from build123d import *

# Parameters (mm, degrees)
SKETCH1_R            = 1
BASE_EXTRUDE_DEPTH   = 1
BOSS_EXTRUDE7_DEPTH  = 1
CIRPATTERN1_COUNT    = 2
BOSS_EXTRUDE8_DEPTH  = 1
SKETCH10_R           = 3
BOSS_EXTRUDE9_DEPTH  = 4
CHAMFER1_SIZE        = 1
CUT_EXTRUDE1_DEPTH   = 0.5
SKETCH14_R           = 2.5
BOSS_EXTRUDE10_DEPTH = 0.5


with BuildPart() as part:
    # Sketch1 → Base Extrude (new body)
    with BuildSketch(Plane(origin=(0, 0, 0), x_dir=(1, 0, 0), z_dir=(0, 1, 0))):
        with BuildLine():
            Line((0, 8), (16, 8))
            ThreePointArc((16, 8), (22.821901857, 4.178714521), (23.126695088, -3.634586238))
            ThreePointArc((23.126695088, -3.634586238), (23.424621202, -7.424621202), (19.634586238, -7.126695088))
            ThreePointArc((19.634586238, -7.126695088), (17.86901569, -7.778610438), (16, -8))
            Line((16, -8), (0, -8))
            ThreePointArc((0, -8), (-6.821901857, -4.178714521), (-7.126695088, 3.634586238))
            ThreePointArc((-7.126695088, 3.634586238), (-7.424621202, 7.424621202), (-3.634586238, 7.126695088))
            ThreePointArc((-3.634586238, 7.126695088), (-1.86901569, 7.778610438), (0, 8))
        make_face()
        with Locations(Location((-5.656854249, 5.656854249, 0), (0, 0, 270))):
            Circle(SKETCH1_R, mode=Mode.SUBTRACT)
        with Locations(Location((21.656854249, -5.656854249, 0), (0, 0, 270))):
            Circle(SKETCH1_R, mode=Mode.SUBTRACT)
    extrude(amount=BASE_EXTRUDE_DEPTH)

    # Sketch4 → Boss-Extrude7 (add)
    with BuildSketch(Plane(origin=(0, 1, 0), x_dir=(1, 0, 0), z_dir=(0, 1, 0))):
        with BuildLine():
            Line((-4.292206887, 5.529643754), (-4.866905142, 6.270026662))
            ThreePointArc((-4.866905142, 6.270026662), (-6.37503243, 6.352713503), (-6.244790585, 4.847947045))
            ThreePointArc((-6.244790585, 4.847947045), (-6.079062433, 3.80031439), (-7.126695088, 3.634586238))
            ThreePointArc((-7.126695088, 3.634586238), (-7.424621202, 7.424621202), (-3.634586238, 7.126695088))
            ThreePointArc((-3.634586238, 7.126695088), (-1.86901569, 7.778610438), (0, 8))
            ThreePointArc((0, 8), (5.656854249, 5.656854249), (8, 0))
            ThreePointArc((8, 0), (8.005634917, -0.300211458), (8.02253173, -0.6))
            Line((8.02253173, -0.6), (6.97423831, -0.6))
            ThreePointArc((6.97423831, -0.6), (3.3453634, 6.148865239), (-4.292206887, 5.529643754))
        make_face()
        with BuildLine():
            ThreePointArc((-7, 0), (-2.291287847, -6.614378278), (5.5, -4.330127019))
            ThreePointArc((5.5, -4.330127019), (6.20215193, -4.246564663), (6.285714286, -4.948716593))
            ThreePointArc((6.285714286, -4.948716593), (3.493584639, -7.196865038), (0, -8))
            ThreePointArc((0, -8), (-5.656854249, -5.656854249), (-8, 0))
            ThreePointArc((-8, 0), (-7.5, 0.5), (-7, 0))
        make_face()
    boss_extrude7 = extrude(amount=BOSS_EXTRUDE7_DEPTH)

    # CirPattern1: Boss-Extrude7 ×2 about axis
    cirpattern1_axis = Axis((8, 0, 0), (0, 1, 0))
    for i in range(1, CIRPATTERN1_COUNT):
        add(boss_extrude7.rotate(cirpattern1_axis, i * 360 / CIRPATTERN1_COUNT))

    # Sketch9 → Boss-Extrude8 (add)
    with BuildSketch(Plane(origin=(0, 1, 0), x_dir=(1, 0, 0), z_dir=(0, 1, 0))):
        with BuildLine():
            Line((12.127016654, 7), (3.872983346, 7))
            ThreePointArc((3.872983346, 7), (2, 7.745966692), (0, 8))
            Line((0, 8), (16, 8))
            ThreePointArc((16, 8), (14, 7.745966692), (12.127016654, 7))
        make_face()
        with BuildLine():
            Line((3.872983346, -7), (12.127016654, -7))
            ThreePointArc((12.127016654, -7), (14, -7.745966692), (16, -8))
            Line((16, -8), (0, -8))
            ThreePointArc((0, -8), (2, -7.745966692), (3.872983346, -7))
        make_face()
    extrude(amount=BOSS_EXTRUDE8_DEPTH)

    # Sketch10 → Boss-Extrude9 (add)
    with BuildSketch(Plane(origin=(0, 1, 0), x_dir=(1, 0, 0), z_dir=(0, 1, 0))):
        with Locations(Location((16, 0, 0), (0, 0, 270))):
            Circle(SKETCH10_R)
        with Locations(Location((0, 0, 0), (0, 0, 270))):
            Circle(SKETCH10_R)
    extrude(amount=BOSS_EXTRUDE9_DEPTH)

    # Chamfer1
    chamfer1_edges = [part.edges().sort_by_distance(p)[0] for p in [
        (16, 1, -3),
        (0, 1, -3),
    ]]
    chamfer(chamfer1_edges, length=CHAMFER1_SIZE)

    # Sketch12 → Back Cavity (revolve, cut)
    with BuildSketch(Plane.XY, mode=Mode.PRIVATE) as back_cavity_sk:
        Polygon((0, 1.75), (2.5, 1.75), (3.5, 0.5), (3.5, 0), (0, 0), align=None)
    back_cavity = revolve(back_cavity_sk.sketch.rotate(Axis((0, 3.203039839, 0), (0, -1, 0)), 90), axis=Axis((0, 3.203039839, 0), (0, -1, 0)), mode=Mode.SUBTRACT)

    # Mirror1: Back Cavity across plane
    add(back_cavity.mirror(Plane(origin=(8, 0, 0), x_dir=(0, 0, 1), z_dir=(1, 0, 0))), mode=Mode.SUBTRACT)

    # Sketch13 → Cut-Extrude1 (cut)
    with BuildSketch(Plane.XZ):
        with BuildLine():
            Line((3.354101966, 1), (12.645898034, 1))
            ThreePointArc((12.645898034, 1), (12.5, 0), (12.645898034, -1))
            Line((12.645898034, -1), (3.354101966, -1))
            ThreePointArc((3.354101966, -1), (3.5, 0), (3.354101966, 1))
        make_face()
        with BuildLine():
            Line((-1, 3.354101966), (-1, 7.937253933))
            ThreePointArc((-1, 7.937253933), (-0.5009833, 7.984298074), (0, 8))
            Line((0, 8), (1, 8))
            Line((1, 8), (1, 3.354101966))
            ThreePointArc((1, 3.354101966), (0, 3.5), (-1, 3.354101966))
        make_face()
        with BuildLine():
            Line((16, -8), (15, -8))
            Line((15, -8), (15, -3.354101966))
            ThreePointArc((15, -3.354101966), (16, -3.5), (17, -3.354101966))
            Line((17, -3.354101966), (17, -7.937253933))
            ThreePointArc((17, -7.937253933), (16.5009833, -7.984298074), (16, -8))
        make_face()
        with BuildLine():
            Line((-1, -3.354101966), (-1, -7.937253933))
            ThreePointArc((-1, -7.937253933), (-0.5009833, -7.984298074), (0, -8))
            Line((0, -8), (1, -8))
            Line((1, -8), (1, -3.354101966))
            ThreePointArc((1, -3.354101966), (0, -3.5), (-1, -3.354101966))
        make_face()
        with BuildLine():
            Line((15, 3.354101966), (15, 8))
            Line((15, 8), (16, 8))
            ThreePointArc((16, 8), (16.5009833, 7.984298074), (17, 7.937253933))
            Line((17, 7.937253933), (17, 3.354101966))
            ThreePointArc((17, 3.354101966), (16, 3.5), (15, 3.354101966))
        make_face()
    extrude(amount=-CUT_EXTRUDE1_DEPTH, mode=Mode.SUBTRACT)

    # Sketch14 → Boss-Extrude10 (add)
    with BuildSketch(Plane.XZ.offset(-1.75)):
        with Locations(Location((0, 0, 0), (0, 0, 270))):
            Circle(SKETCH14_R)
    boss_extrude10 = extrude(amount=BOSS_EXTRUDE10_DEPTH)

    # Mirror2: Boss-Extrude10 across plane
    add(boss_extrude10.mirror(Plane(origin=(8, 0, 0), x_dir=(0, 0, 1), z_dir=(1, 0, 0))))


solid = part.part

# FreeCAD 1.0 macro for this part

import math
import FreeCAD as App
import Part
import Sketcher


def edges_at(feature, points):
    """Names of the edges that pass closest to the given points."""
    edges = feature.Shape.Edges
    near = lambda p: min(range(len(edges)), key=lambda i: edges[i].distToShape(Part.Vertex(*p))[0])
    return sorted({f"Edge{near(p) + 1}" for p in points})

doc = App.newDocument("Part")
body = doc.addObject("PartDesign::Body", "Body")

sketch1 = doc.addObject("Sketcher::SketchObject", "Sketch")
body.addObject(sketch1)
sketch1.AttachmentSupport = (doc.XZ_Plane, [""])
sketch1.MapMode = "FlatFace"
sketch1.addGeometry(Part.LineSegment(App.Vector(16, -8, 0), App.Vector(0, -8, 0)), False)
sketch1.addGeometry(Part.ArcOfCircle(Part.Circle(App.Vector(0, 0, 0), App.Vector(0, 0, 1), 8), math.radians(-117.021401), math.radians(-90)), False)
sketch1.addGeometry(Part.ArcOfCircle(Part.Circle(App.Vector(-5.656854, -5.656854, 0), App.Vector(0, 0, 1), 2.5), math.radians(126.010701), math.radians(323.989299)), False)
sketch1.addGeometry(Part.ArcOfCircle(Part.Circle(App.Vector(0, 0, 0), App.Vector(0, 0, 1), 8), math.radians(90), math.radians(207.021401)), False)
sketch1.addGeometry(Part.LineSegment(App.Vector(0, 8, 0), App.Vector(16, 8, 0)), False)
sketch1.addGeometry(Part.ArcOfCircle(Part.Circle(App.Vector(16, 0, 0), App.Vector(0, 0, 1), 8), math.radians(62.978599), math.radians(90)), False)
sketch1.addGeometry(Part.ArcOfCircle(Part.Circle(App.Vector(21.656854, 5.656854, 0), App.Vector(0, 0, 1), 2.5), math.radians(-53.989299), math.radians(143.989299)), False)
sketch1.addGeometry(Part.ArcOfCircle(Part.Circle(App.Vector(16, 0, 0), App.Vector(0, 0, 1), 8), math.radians(-90), math.radians(27.021401)), False)
sketch1.addGeometry(Part.Circle(App.Vector(21.656854, 5.656854, 0), App.Vector(0, 0, 1), 1), False)
sketch1.addGeometry(Part.Circle(App.Vector(-5.656854, -5.656854, 0), App.Vector(0, 0, 1), 1), False)
sketch1.addConstraint(Sketcher.Constraint("Tangent", 0, 2, 1, 2))
sketch1.addConstraint(Sketcher.Constraint("Coincident", 1, 1, 2, 2))
sketch1.addConstraint(Sketcher.Constraint("Coincident", 2, 1, 3, 2))
sketch1.addConstraint(Sketcher.Constraint("Tangent", 3, 1, 4, 1))
sketch1.addConstraint(Sketcher.Constraint("Tangent", 4, 2, 5, 2))
sketch1.addConstraint(Sketcher.Constraint("Coincident", 5, 1, 6, 2))
sketch1.addConstraint(Sketcher.Constraint("Coincident", 6, 1, 7, 2))
sketch1.addConstraint(Sketcher.Constraint("Tangent", 7, 1, 0, 1))
sketch1.addConstraint(Sketcher.Constraint("Horizontal", 0))
sketch1.addConstraint(Sketcher.Constraint("Horizontal", 4))
sketch1.addConstraint(Sketcher.Constraint("Coincident", 1, 3, -1, 1))
sketch1.addConstraint(Sketcher.Constraint("Coincident", 3, 3, -1, 1))
sketch1.addConstraint(Sketcher.Constraint("Coincident", 7, 3, 5, 3))
sketch1.addConstraint(Sketcher.Constraint("Coincident", 8, 3, 6, 3))
sketch1.addConstraint(Sketcher.Constraint("Coincident", 9, 3, 2, 3))
sketch1.addConstraint(Sketcher.Constraint("Equal", 1, 3))
sketch1.addConstraint(Sketcher.Constraint("Equal", 3, 5))
sketch1.addConstraint(Sketcher.Constraint("Equal", 2, 6))
sketch1.addConstraint(Sketcher.Constraint("Equal", 8, 9))
sketch1.addConstraint(Sketcher.Constraint("Diameter", 8, 2.0))
sketch1.addConstraint(Sketcher.Constraint("Radius", 1, 8.0))
sketch1.addConstraint(Sketcher.Constraint("Radius", 2, 2.5))
sketch1.addConstraint(Sketcher.Constraint("DistanceX", 0, 2, 0, 1, 16.0))
sketch1.addConstraint(Sketcher.Constraint("DistanceX", 2, 3, 6, 3, 27.313708))
sketch1.addConstraint(Sketcher.Constraint("DistanceY", 2, 3, 6, 3, 11.313708))
sketch1.addConstraint(Sketcher.Constraint("DistanceX", 2, 3, 1, 1, 2.022268))
sketch1.addConstraint(Sketcher.Constraint("DistanceX", 2, 1, 2, 3, 1.469841))
pad1 = doc.addObject("PartDesign::Pad", "Pad")
body.addObject(pad1)
pad1.Profile = sketch1
pad1.Length = 1
pad1.Reversed = True

sketch2 = doc.addObject("Sketcher::SketchObject", "Sketch001")
body.addObject(sketch2)
sketch2.AttachmentSupport = (doc.XZ_Plane, [""])
sketch2.MapMode = "FlatFace"
sketch2.AttachmentOffset = App.Placement(App.Vector(0, 0, -1), App.Rotation())
sketch2.addGeometry(Part.LineSegment(App.Vector(-4.866905, -6.270027, 0), App.Vector(-4.292207, -5.529644, 0)), False)
sketch2.addGeometry(Part.ArcOfCircle(Part.Circle(App.Vector(0, 0, 0), App.Vector(0, 0, 1), 7), math.radians(-127.819244), math.radians(4.9171)), False)
sketch2.addGeometry(Part.LineSegment(App.Vector(6.974238, 0.6, 0), App.Vector(8.022532, 0.6, 0)), False)
sketch2.addGeometry(Part.ArcOfCircle(Part.Circle(App.Vector(16, 0, 0), App.Vector(0, 0, 1), 8), math.radians(175.698778), math.radians(180)), False)
sketch2.addGeometry(Part.ArcOfCircle(Part.Circle(App.Vector(0, 0, 0), App.Vector(0, 0, 1), 8), math.radians(-90), math.radians(0)), False)
sketch2.addGeometry(Part.ArcOfCircle(Part.Circle(App.Vector(0, 0, 0), App.Vector(0, 0, 1), 8), math.radians(-117.021401), math.radians(-90)), False)
sketch2.addGeometry(Part.ArcOfCircle(Part.Circle(App.Vector(-5.656854, -5.656854, 0), App.Vector(0, 0, 1), 2.5), math.radians(126.010701), math.radians(323.989299)), False)
sketch2.addGeometry(Part.ArcOfCircle(Part.Circle(App.Vector(-6.685743, -4.241267, 0), App.Vector(0, 0, 1), 0.75), math.radians(-53.989299), math.radians(126.010701)), False)
sketch2.addGeometry(Part.ArcOfCircle(Part.Circle(App.Vector(-5.656854, -5.656854, 0), App.Vector(0, 0, 1), 1), math.radians(126.010701), math.radians(322.180756)), False)
sketch2.addGeometry(Part.ArcOfCircle(Part.Circle(App.Vector(0, 0, 0), App.Vector(0, 0, 1), 7), math.radians(38.213211), math.radians(180)), False)
sketch2.addGeometry(Part.ArcOfCircle(Part.Circle(App.Vector(-7.5, 0, 0), App.Vector(0, 0, 1), 0.5), math.radians(180), math.radians(360)), False)
sketch2.addGeometry(Part.ArcOfCircle(Part.Circle(App.Vector(0, 0, 0), App.Vector(0, 0, 1), 8), math.radians(90), math.radians(180)), False)
sketch2.addGeometry(Part.ArcOfCircle(Part.Circle(App.Vector(0, 0, 0), App.Vector(0, 0, 1), 8), math.radians(38.213211), math.radians(90)), False)
sketch2.addGeometry(Part.ArcOfCircle(Part.Circle(App.Vector(5.892857, 4.639422, 0), App.Vector(0, 0, 1), 0.5), math.radians(-141.786789), math.radians(38.213211)), False)
sketch2.addConstraint(Sketcher.Constraint("Coincident", 0, 2, 1, 1))
sketch2.addConstraint(Sketcher.Constraint("Coincident", 1, 2, 2, 1))
sketch2.addConstraint(Sketcher.Constraint("Coincident", 2, 2, 3, 1))
sketch2.addConstraint(Sketcher.Constraint("Tangent", 3, 2, 4, 2))
sketch2.addConstraint(Sketcher.Constraint("Tangent", 4, 1, 5, 2))
sketch2.addConstraint(Sketcher.Constraint("Coincident", 5, 1, 6, 2))
sketch2.addConstraint(Sketcher.Constraint("Tangent", 6, 1, 7, 2))
sketch2.addConstraint(Sketcher.Constraint("Tangent", 7, 1, 8, 1))
sketch2.addConstraint(Sketcher.Constraint("Tangent", 8, 2, 0, 1))
sketch2.addConstraint(Sketcher.Constraint("Tangent", 9, 2, 10, 2))
sketch2.addConstraint(Sketcher.Constraint("Tangent", 10, 1, 11, 2))
sketch2.addConstraint(Sketcher.Constraint("Tangent", 11, 1, 12, 2))
sketch2.addConstraint(Sketcher.Constraint("Tangent", 12, 1, 13, 2))
sketch2.addConstraint(Sketcher.Constraint("Tangent", 13, 1, 9, 1))
sketch2.addConstraint(Sketcher.Constraint("Horizontal", 2))
sketch2.addConstraint(Sketcher.Constraint("Coincident", 1, 3, -1, 1))
sketch2.addConstraint(Sketcher.Constraint("Coincident", 4, 3, -1, 1))
sketch2.addConstraint(Sketcher.Constraint("Coincident", 9, 3, -1, 1))
sketch2.addConstraint(Sketcher.Constraint("Coincident", 11, 3, -1, 1))
sketch2.addConstraint(Sketcher.Constraint("Coincident", 8, 3, 6, 3))
sketch2.addConstraint(Sketcher.Constraint("Equal", 3, 4))
sketch2.addConstraint(Sketcher.Constraint("Equal", 4, 5))
sketch2.addConstraint(Sketcher.Constraint("Equal", 1, 9))
sketch2.addConstraint(Sketcher.Constraint("Equal", 5, 11))
sketch2.addConstraint(Sketcher.Constraint("Equal", 11, 12))
sketch2.addConstraint(Sketcher.Constraint("PointOnObject", 3, 3, -1))
sketch2.addConstraint(Sketcher.Constraint("PointOnObject", 10, 3, -1))
sketch2.addConstraint(Sketcher.Constraint("PointOnObject", 4, 1, -2))
sketch2.addConstraint(Sketcher.Constraint("PointOnObject", 11, 1, -2))
sketch2.addConstraint(Sketcher.Constraint("Radius", 1, 7.0))
sketch2.addConstraint(Sketcher.Constraint("Radius", 3, 8.0))
sketch2.addConstraint(Sketcher.Constraint("Radius", 8, 1.0))
sketch2.addConstraint(Sketcher.Constraint("Radius", 6, 2.5))
sketch2.addConstraint(Sketcher.Constraint("DistanceY", -1, 1, 1, 2, 0.6))
sketch2.addConstraint(Sketcher.Constraint("DistanceX", -1, 1, 13, 1, 5.5))
sketch2.addConstraint(Sketcher.Constraint("DistanceX", 8, 2, 0, 2, 0.574698))
sketch2.addConstraint(Sketcher.Constraint("DistanceX", 7, 1, -1, 1, 6.244791))
sketch2.addConstraint(Sketcher.Constraint("DistanceX", 7, 3, 6, 3, 1.028889))
sketch2.addConstraint(Sketcher.Constraint("DistanceY", 6, 3, 0, 2, 0.12721))
pad2 = doc.addObject("PartDesign::Pad", "Pad001")
body.addObject(pad2)
pad2.Profile = sketch2
pad2.Length = 1
pad2.Reversed = True
doc.recompute()

datumline = doc.addObject("PartDesign::Line", "DatumLine")
body.addObject(datumline)
datumline.Placement = App.Placement(App.Vector(8, 0, 0), App.Rotation(App.Vector(0, 0, 1), App.Vector(0, 1, 0)))
polarpattern = doc.addObject("PartDesign::PolarPattern", "PolarPattern")
body.addObject(polarpattern)
polarpattern.Originals = [pad2]
polarpattern.Axis = (datumline, [""])
polarpattern.Angle = 360
polarpattern.Occurrences = 2
body.Tip = polarpattern

sketch3 = doc.addObject("Sketcher::SketchObject", "Sketch002")
body.addObject(sketch3)
sketch3.AttachmentSupport = (doc.XZ_Plane, [""])
sketch3.MapMode = "FlatFace"
sketch3.AttachmentOffset = App.Placement(App.Vector(0, 0, -1), App.Rotation())
sketch3.addGeometry(Part.LineSegment(App.Vector(3.872983, -7, 0), App.Vector(12.127017, -7, 0)), False)
sketch3.addGeometry(Part.ArcOfCircle(Part.Circle(App.Vector(16, 0, 0), App.Vector(0, 0, 1), 8), math.radians(-118.955024), math.radians(-90)), False)
sketch3.addGeometry(Part.LineSegment(App.Vector(16, -8, 0), App.Vector(0, -8, 0)), False)
sketch3.addGeometry(Part.ArcOfCircle(Part.Circle(App.Vector(0, 0, 0), App.Vector(0, 0, 1), 8), math.radians(-90), math.radians(-61.044976)), False)
sketch3.addGeometry(Part.LineSegment(App.Vector(12.127017, 7, 0), App.Vector(3.872983, 7, 0)), False)
sketch3.addGeometry(Part.ArcOfCircle(Part.Circle(App.Vector(0, 0, 0), App.Vector(0, 0, 1), 8), math.radians(61.044976), math.radians(90)), False)
sketch3.addGeometry(Part.LineSegment(App.Vector(0, 8, 0), App.Vector(16, 8, 0)), False)
sketch3.addGeometry(Part.ArcOfCircle(Part.Circle(App.Vector(16, 0, 0), App.Vector(0, 0, 1), 8), math.radians(90), math.radians(118.955024)), False)
sketch3.addConstraint(Sketcher.Constraint("Coincident", 0, 2, 1, 1))
sketch3.addConstraint(Sketcher.Constraint("Tangent", 1, 2, 2, 1))
sketch3.addConstraint(Sketcher.Constraint("Tangent", 2, 2, 3, 1))
sketch3.addConstraint(Sketcher.Constraint("Coincident", 3, 2, 0, 1))
sketch3.addConstraint(Sketcher.Constraint("Coincident", 4, 2, 5, 1))
sketch3.addConstraint(Sketcher.Constraint("Tangent", 5, 2, 6, 1))
sketch3.addConstraint(Sketcher.Constraint("Tangent", 6, 2, 7, 1))
sketch3.addConstraint(Sketcher.Constraint("Coincident", 7, 2, 4, 1))
sketch3.addConstraint(Sketcher.Constraint("Horizontal", 0))
sketch3.addConstraint(Sketcher.Constraint("Horizontal", 2))
sketch3.addConstraint(Sketcher.Constraint("Horizontal", 4))
sketch3.addConstraint(Sketcher.Constraint("Horizontal", 6))
sketch3.addConstraint(Sketcher.Constraint("Coincident", 3, 3, -1, 1))
sketch3.addConstraint(Sketcher.Constraint("Coincident", 5, 3, -1, 1))
sketch3.addConstraint(Sketcher.Constraint("Coincident", 7, 3, 1, 3))
sketch3.addConstraint(Sketcher.Constraint("Equal", 1, 3))
sketch3.addConstraint(Sketcher.Constraint("Equal", 3, 5))
sketch3.addConstraint(Sketcher.Constraint("Vertical", 3, 2, 4, 2))
sketch3.addConstraint(Sketcher.Constraint("Radius", 1, 8.0))
sketch3.addConstraint(Sketcher.Constraint("DistanceX", 2, 2, 2, 1, 16.0))
sketch3.addConstraint(Sketcher.Constraint("DistanceY", 0, 2, -1, 1, 7.0))
pad3 = doc.addObject("PartDesign::Pad", "Pad002")
body.addObject(pad3)
pad3.Profile = sketch3
pad3.Length = 1
pad3.Reversed = True

sketch4 = doc.addObject("Sketcher::SketchObject", "Sketch003")
body.addObject(sketch4)
sketch4.AttachmentSupport = (doc.XZ_Plane, [""])
sketch4.MapMode = "FlatFace"
sketch4.AttachmentOffset = App.Placement(App.Vector(0, 0, -1), App.Rotation())
sketch4.addGeometry(Part.Circle(App.Vector(16, 0, 0), App.Vector(0, 0, 1), 3), False)
sketch4.addGeometry(Part.Circle(App.Vector(0, 0, 0), App.Vector(0, 0, 1), 3), False)
sketch4.addConstraint(Sketcher.Constraint("Coincident", 1, 3, -1, 1))
sketch4.addConstraint(Sketcher.Constraint("Equal", 0, 1))
sketch4.addConstraint(Sketcher.Constraint("PointOnObject", 0, 3, -1))
sketch4.addConstraint(Sketcher.Constraint("Diameter", 0, 6.0))
sketch4.addConstraint(Sketcher.Constraint("DistanceX", -1, 1, 0, 3, 16.0))
pad4 = doc.addObject("PartDesign::Pad", "Pad003")
body.addObject(pad4)
pad4.Profile = sketch4
pad4.Length = 4
pad4.Reversed = True
doc.recompute()

chamfer = doc.addObject("PartDesign::Chamfer", "Chamfer")
body.addObject(chamfer)
chamfer.Base = (pad4, edges_at(pad4, [(16, 1, -3), (0, 1, -3)]))
chamfer.Size = 1

sketch5 = doc.addObject("Sketcher::SketchObject", "Sketch004")
body.addObject(sketch5)
sketch5.AttachmentSupport = (doc.XY_Plane, [""])
sketch5.MapMode = "FlatFace"
sketch5.addGeometry(Part.LineSegment(App.Vector(2.5, 1.75, 0), App.Vector(0, 1.75, 0)), False)
sketch5.addGeometry(Part.LineSegment(App.Vector(0, 1.75, 0), App.Vector(0, 0, 0)), False)
sketch5.addGeometry(Part.LineSegment(App.Vector(0, 0, 0), App.Vector(3.5, 0, 0)), False)
sketch5.addGeometry(Part.LineSegment(App.Vector(3.5, 0, 0), App.Vector(3.5, 0.5, 0)), False)
sketch5.addGeometry(Part.LineSegment(App.Vector(3.5, 0.5, 0), App.Vector(2.5, 1.75, 0)), False)
sketch5.addConstraint(Sketcher.Constraint("Coincident", 0, 2, 1, 1))
sketch5.addConstraint(Sketcher.Constraint("Coincident", 1, 2, 2, 1))
sketch5.addConstraint(Sketcher.Constraint("Coincident", 2, 2, 3, 1))
sketch5.addConstraint(Sketcher.Constraint("Coincident", 3, 2, 4, 1))
sketch5.addConstraint(Sketcher.Constraint("Coincident", 4, 2, 0, 1))
sketch5.addConstraint(Sketcher.Constraint("Horizontal", 0))
sketch5.addConstraint(Sketcher.Constraint("Vertical", 1))
sketch5.addConstraint(Sketcher.Constraint("Horizontal", 2))
sketch5.addConstraint(Sketcher.Constraint("Vertical", 3))
sketch5.addConstraint(Sketcher.Constraint("Coincident", 1, 2, -1, 1))
sketch5.addConstraint(Sketcher.Constraint("DistanceX", 0, 2, 0, 1, 2.5))
sketch5.addConstraint(Sketcher.Constraint("DistanceX", 2, 1, 2, 2, 3.5))
sketch5.addConstraint(Sketcher.Constraint("DistanceY", 3, 1, 3, 2, 0.5))
sketch5.addConstraint(Sketcher.Constraint("DistanceY", 1, 2, 1, 1, 1.75))
groove = doc.addObject("PartDesign::Groove", "Groove")
body.addObject(groove)
groove.Profile = sketch5
groove.ReferenceAxis = (sketch5, ["V_Axis"])
groove.Angle = 360
doc.recompute()

datumplane = doc.addObject("PartDesign::Plane", "DatumPlane")
body.addObject(datumplane)
datumplane.AttachmentSupport = (doc.YZ_Plane, [""])
datumplane.MapMode = "FlatFace"
datumplane.AttachmentOffset = App.Placement(App.Vector(0, 0, 8), App.Rotation())
mirrored = doc.addObject("PartDesign::Mirrored", "Mirrored")
body.addObject(mirrored)
mirrored.Originals = [groove]
mirrored.MirrorPlane = (datumplane, [""])
body.Tip = mirrored

sketch6 = doc.addObject("Sketcher::SketchObject", "Sketch005")
body.addObject(sketch6)
sketch6.AttachmentSupport = (doc.XZ_Plane, [""])
sketch6.MapMode = "FlatFace"
sketch6.addGeometry(Part.LineSegment(App.Vector(12.645898, 1, 0), App.Vector(3.354102, 1, 0)), False)
sketch6.addGeometry(Part.ArcOfCircle(Part.Circle(App.Vector(0, 0, 0), App.Vector(0, 0, 1), 3.5), math.radians(-16.60155), math.radians(16.60155)), False)
sketch6.addGeometry(Part.LineSegment(App.Vector(3.354102, -1, 0), App.Vector(12.645898, -1, 0)), False)
sketch6.addGeometry(Part.ArcOfCircle(Part.Circle(App.Vector(16, 0, 0), App.Vector(0, 0, 1), 3.5), math.radians(163.39845), math.radians(196.60155)), False)
sketch6.addGeometry(Part.LineSegment(App.Vector(-1, 7.937254, 0), App.Vector(-1, 3.354102, 0)), False)
sketch6.addGeometry(Part.ArcOfCircle(Part.Circle(App.Vector(0, 0, 0), App.Vector(0, 0, 1), 3.5), math.radians(73.39845), math.radians(106.60155)), False)
sketch6.addGeometry(Part.LineSegment(App.Vector(1, 3.354102, 0), App.Vector(1, 8, 0)), False)
sketch6.addGeometry(Part.LineSegment(App.Vector(1, 8, 0), App.Vector(0, 8, 0)), False)
sketch6.addGeometry(Part.ArcOfCircle(Part.Circle(App.Vector(0, 0, 0), App.Vector(0, 0, 1), 8), math.radians(90), math.radians(97.180756)), False)
sketch6.addGeometry(Part.LineSegment(App.Vector(15, -8, 0), App.Vector(16, -8, 0)), False)
sketch6.addGeometry(Part.ArcOfCircle(Part.Circle(App.Vector(16, 0, 0), App.Vector(0, 0, 1), 8), math.radians(-90), math.radians(-82.819244)), False)
sketch6.addGeometry(Part.LineSegment(App.Vector(17, -7.937254, 0), App.Vector(17, -3.354102, 0)), False)
sketch6.addGeometry(Part.ArcOfCircle(Part.Circle(App.Vector(16, 0, 0), App.Vector(0, 0, 1), 3.5), math.radians(-106.60155), math.radians(-73.39845)), False)
sketch6.addGeometry(Part.LineSegment(App.Vector(15, -3.354102, 0), App.Vector(15, -8, 0)), False)
sketch6.addGeometry(Part.LineSegment(App.Vector(-1, -3.354102, 0), App.Vector(-1, -7.937254, 0)), False)
sketch6.addGeometry(Part.ArcOfCircle(Part.Circle(App.Vector(0, 0, 0), App.Vector(0, 0, 1), 8), math.radians(-97.180756), math.radians(-90)), False)
sketch6.addGeometry(Part.LineSegment(App.Vector(0, -8, 0), App.Vector(1, -8, 0)), False)
sketch6.addGeometry(Part.LineSegment(App.Vector(1, -8, 0), App.Vector(1, -3.354102, 0)), False)
sketch6.addGeometry(Part.ArcOfCircle(Part.Circle(App.Vector(0, 0, 0), App.Vector(0, 0, 1), 3.5), math.radians(-106.60155), math.radians(-73.39845)), False)
sketch6.addGeometry(Part.LineSegment(App.Vector(15, 8, 0), App.Vector(15, 3.354102, 0)), False)
sketch6.addGeometry(Part.ArcOfCircle(Part.Circle(App.Vector(16, 0, 0), App.Vector(0, 0, 1), 3.5), math.radians(73.39845), math.radians(106.60155)), False)
sketch6.addGeometry(Part.LineSegment(App.Vector(17, 3.354102, 0), App.Vector(17, 7.937254, 0)), False)
sketch6.addGeometry(Part.ArcOfCircle(Part.Circle(App.Vector(16, 0, 0), App.Vector(0, 0, 1), 8), math.radians(82.819244), math.radians(90)), False)
sketch6.addGeometry(Part.LineSegment(App.Vector(16, 8, 0), App.Vector(15, 8, 0)), False)
sketch6.addConstraint(Sketcher.Constraint("Coincident", 0, 2, 1, 2))
sketch6.addConstraint(Sketcher.Constraint("Coincident", 1, 1, 2, 1))
sketch6.addConstraint(Sketcher.Constraint("Coincident", 2, 2, 3, 2))
sketch6.addConstraint(Sketcher.Constraint("Coincident", 3, 1, 0, 1))
sketch6.addConstraint(Sketcher.Constraint("Coincident", 4, 2, 5, 2))
sketch6.addConstraint(Sketcher.Constraint("Coincident", 5, 1, 6, 1))
sketch6.addConstraint(Sketcher.Constraint("Coincident", 6, 2, 7, 1))
sketch6.addConstraint(Sketcher.Constraint("Tangent", 7, 2, 8, 1))
sketch6.addConstraint(Sketcher.Constraint("Coincident", 8, 2, 4, 1))
sketch6.addConstraint(Sketcher.Constraint("Tangent", 9, 2, 10, 1))
sketch6.addConstraint(Sketcher.Constraint("Coincident", 10, 2, 11, 1))
sketch6.addConstraint(Sketcher.Constraint("Coincident", 11, 2, 12, 2))
sketch6.addConstraint(Sketcher.Constraint("Coincident", 12, 1, 13, 1))
sketch6.addConstraint(Sketcher.Constraint("Coincident", 13, 2, 9, 1))
sketch6.addConstraint(Sketcher.Constraint("Coincident", 14, 2, 15, 1))
sketch6.addConstraint(Sketcher.Constraint("Tangent", 15, 2, 16, 1))
sketch6.addConstraint(Sketcher.Constraint("Coincident", 16, 2, 17, 1))
sketch6.addConstraint(Sketcher.Constraint("Coincident", 17, 2, 18, 2))
sketch6.addConstraint(Sketcher.Constraint("Coincident", 18, 1, 14, 1))
sketch6.addConstraint(Sketcher.Constraint("Coincident", 19, 2, 20, 2))
sketch6.addConstraint(Sketcher.Constraint("Coincident", 20, 1, 21, 1))
sketch6.addConstraint(Sketcher.Constraint("Coincident", 21, 2, 22, 1))
sketch6.addConstraint(Sketcher.Constraint("Tangent", 22, 2, 23, 1))
sketch6.addConstraint(Sketcher.Constraint("Coincident", 23, 2, 19, 1))
sketch6.addConstraint(Sketcher.Constraint("Horizontal", 0))
sketch6.addConstraint(Sketcher.Constraint("Horizontal", 2))
sketch6.addConstraint(Sketcher.Constraint("Vertical", 4))
sketch6.addConstraint(Sketcher.Constraint("Vertical", 6))
sketch6.addConstraint(Sketcher.Constraint("Horizontal", 7))
sketch6.addConstraint(Sketcher.Constraint("Horizontal", 9))
sketch6.addConstraint(Sketcher.Constraint("Vertical", 11))
sketch6.addConstraint(Sketcher.Constraint("Vertical", 13))
sketch6.addConstraint(Sketcher.Constraint("Vertical", 14))
sketch6.addConstraint(Sketcher.Constraint("Horizontal", 16))
sketch6.addConstraint(Sketcher.Constraint("Vertical", 17))
sketch6.addConstraint(Sketcher.Constraint("Vertical", 19))
sketch6.addConstraint(Sketcher.Constraint("Vertical", 21))
sketch6.addConstraint(Sketcher.Constraint("Horizontal", 23))
sketch6.addConstraint(Sketcher.Constraint("Coincident", 1, 3, -1, 1))
sketch6.addConstraint(Sketcher.Constraint("Coincident", 5, 3, -1, 1))
sketch6.addConstraint(Sketcher.Constraint("Coincident", 8, 3, -1, 1))
sketch6.addConstraint(Sketcher.Constraint("Coincident", 15, 3, -1, 1))
sketch6.addConstraint(Sketcher.Constraint("Coincident", 18, 3, -1, 1))
sketch6.addConstraint(Sketcher.Constraint("Coincident", 10, 3, 3, 3))
sketch6.addConstraint(Sketcher.Constraint("Coincident", 12, 3, 3, 3))
sketch6.addConstraint(Sketcher.Constraint("Coincident", 20, 3, 3, 3))
sketch6.addConstraint(Sketcher.Constraint("Coincident", 22, 3, 3, 3))
sketch6.addConstraint(Sketcher.Constraint("Equal", 1, 3))
sketch6.addConstraint(Sketcher.Constraint("Equal", 3, 5))
sketch6.addConstraint(Sketcher.Constraint("Equal", 8, 10))
sketch6.addConstraint(Sketcher.Constraint("Equal", 5, 12))
sketch6.addConstraint(Sketcher.Constraint("Equal", 10, 15))
sketch6.addConstraint(Sketcher.Constraint("Equal", 12, 18))
sketch6.addConstraint(Sketcher.Constraint("Equal", 18, 20))
sketch6.addConstraint(Sketcher.Constraint("Equal", 15, 22))
sketch6.addConstraint(Sketcher.Constraint("Symmetric", 2, 2, 3, 1, -1))
sketch6.addConstraint(Sketcher.Constraint("Horizontal", 4, 2, 5, 1))
sketch6.addConstraint(Sketcher.Constraint("Horizontal", 11, 2, 12, 1))
sketch6.addConstraint(Sketcher.Constraint("Horizontal", 10, 2, 14, 2))
sketch6.addConstraint(Sketcher.Constraint("Horizontal", 12, 1, 17, 2))
sketch6.addConstraint(Sketcher.Constraint("Horizontal", 5, 1, 19, 2))
sketch6.addConstraint(Sketcher.Constraint("Horizontal", 19, 2, 20, 1))
sketch6.addConstraint(Sketcher.Constraint("Vertical", 8, 2, 14, 2))
sketch6.addConstraint(Sketcher.Constraint("Radius", 8, 8.0))
sketch6.addConstraint(Sketcher.Constraint("Radius", 1, 3.5))
sketch6.addConstraint(Sketcher.Constraint("DistanceX", 7, 2, 7, 1, 1.0))
sketch6.addConstraint(Sketcher.Constraint("DistanceX", -1, 1, 3, 3, 16.0))
sketch6.addConstraint(Sketcher.Constraint("DistanceY", -1, 1, 0, 2, 1.0))
pocket1 = doc.addObject("PartDesign::Pocket", "Pocket")
body.addObject(pocket1)
pocket1.Profile = sketch6
pocket1.Length = 0.5

sketch7 = doc.addObject("Sketcher::SketchObject", "Sketch006")
body.addObject(sketch7)
sketch7.AttachmentSupport = (doc.XZ_Plane, [""])
sketch7.MapMode = "FlatFace"
sketch7.AttachmentOffset = App.Placement(App.Vector(0, 0, -1.75), App.Rotation())
sketch7.addGeometry(Part.Circle(App.Vector(0, 0, 0), App.Vector(0, 0, 1), 2.5), False)
sketch7.addConstraint(Sketcher.Constraint("Coincident", 0, 3, -1, 1))
sketch7.addConstraint(Sketcher.Constraint("Diameter", 0, 5.0))
pad5 = doc.addObject("PartDesign::Pad", "Pad004")
body.addObject(pad5)
pad5.Profile = sketch7
pad5.Length = 0.5
doc.recompute()

datumplane2 = doc.addObject("PartDesign::Plane", "DatumPlane001")
body.addObject(datumplane2)
datumplane2.AttachmentSupport = (doc.YZ_Plane, [""])
datumplane2.MapMode = "FlatFace"
datumplane2.AttachmentOffset = App.Placement(App.Vector(0, 0, 8), App.Rotation())
mirrored2 = doc.addObject("PartDesign::Mirrored", "Mirrored001")
body.addObject(mirrored2)
mirrored2.Originals = [pad5]
mirrored2.MirrorPlane = (datumplane2, [""])
body.Tip = mirrored2

doc.recompute()
